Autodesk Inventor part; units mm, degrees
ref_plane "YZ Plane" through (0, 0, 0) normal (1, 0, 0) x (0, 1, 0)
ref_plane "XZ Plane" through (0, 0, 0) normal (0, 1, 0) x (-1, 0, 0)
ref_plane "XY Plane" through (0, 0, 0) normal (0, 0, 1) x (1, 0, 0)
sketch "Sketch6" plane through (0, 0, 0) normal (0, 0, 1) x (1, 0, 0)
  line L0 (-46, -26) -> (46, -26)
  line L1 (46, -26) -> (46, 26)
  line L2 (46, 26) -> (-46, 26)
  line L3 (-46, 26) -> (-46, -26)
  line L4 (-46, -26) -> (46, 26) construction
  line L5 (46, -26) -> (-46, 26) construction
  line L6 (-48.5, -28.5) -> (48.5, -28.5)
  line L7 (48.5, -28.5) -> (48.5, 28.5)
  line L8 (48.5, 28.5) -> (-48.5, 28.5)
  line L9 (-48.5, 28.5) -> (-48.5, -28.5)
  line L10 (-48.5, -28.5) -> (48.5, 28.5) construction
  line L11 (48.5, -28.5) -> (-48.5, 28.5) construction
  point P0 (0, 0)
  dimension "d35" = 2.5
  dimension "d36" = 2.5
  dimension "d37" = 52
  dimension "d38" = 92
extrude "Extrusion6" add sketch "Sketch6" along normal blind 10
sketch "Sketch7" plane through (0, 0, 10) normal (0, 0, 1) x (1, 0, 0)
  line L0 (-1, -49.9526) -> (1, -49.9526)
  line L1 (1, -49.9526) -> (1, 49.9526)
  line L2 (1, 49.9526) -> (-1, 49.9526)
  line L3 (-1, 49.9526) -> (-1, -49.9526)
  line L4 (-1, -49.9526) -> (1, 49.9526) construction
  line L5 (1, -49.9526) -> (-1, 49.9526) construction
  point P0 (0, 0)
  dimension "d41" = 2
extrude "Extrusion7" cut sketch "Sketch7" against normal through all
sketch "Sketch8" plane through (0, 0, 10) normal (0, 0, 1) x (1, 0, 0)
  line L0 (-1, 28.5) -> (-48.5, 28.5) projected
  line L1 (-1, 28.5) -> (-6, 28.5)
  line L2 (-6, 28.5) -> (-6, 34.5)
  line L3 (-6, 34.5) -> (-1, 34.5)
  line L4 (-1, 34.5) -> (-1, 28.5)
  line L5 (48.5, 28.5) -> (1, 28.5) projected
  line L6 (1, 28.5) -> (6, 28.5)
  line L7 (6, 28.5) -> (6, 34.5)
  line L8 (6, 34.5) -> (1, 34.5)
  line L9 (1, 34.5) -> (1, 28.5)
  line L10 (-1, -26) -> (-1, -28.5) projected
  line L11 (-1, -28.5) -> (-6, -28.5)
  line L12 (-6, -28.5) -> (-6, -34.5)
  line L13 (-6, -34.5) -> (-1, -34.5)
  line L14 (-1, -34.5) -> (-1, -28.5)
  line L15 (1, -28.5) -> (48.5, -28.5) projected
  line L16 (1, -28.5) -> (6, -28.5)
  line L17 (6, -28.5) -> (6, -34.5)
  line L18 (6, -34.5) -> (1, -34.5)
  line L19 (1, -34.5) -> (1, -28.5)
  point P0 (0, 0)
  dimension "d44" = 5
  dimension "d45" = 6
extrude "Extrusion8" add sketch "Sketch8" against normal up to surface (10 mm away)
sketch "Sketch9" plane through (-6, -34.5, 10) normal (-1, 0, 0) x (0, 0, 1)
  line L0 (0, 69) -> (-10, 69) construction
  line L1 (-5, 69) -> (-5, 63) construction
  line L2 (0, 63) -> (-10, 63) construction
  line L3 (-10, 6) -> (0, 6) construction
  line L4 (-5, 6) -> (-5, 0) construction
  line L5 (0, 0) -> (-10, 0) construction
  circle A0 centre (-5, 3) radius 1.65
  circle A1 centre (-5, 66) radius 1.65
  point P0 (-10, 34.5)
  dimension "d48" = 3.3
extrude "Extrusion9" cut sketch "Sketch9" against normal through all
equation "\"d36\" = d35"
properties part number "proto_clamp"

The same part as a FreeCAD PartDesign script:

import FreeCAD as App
import Part
import Sketcher

V = App.Vector
Q = App.Units.Quantity

doc = App.newDocument("Part")
body = doc.addObject("PartDesign::Body", "Body")
body.AllowCompound = True

sketch1 = doc.addObject("Sketcher::SketchObject", "Sketch")
body.addObject(sketch1)
sketch1.AttachmentSupport = (doc.XY_Plane, [""])
sketch1.MapMode = "FlatFace"
sketch1.addGeometry([
    Part.LineSegment(V(-48, 28, 0), V(-48, -28, 0)),
    Part.LineSegment(V(-48, -28, 0), V(48, -28, 0)),
    Part.LineSegment(V(48, -28, 0), V(48, 28, 0)),
    Part.LineSegment(V(48, 28, 0), V(-48, 28, 0)),
    Part.LineSegment(V(46, -26, 0), V(-46, -26, 0)),
    Part.LineSegment(V(-46, -26, 0), V(-46, 26, 0)),
    Part.LineSegment(V(-46, 26, 0), V(46, 26, 0)),
    Part.LineSegment(V(46, 26, 0), V(46, -26, 0)),
], False)
sketch1.addConstraint([
    Sketcher.Constraint("Coincident", 0, 2, 1, 1),
    Sketcher.Constraint("Coincident", 1, 2, 2, 1),
    Sketcher.Constraint("Coincident", 2, 2, 3, 1),
    Sketcher.Constraint("Coincident", 3, 2, 0, 1),
    Sketcher.Constraint("Coincident", 4, 2, 5, 1),
    Sketcher.Constraint("Coincident", 5, 2, 6, 1),
    Sketcher.Constraint("Coincident", 6, 2, 7, 1),
    Sketcher.Constraint("Coincident", 7, 2, 4, 1),
    Sketcher.Constraint("Vertical", 0),
    Sketcher.Constraint("Horizontal", 1),
    Sketcher.Constraint("Vertical", 2),
    Sketcher.Constraint("Horizontal", 3),
    Sketcher.Constraint("Horizontal", 4),
    Sketcher.Constraint("Vertical", 5),
    Sketcher.Constraint("Horizontal", 6),
    Sketcher.Constraint("Vertical", 7),
    Sketcher.Constraint("Symmetric", 0, 2, 2, 2, -1, 1),
    Sketcher.Constraint("Symmetric", 4, 2, 6, 2, -1, 1),
    Sketcher.Constraint("DistanceX", 4, 2, 4, 1, Q("92 mm")),
    Sketcher.Constraint("DistanceY", 5, 1, 5, 2, Q("52 mm")),
    Sketcher.Constraint("DistanceX", 0, 2, 4, 2, Q("2.5 mm")),
    Sketcher.Constraint("DistanceY", 0, 2, 4, 2, Q("2.5 mm")),
])
pad1 = doc.addObject("PartDesign::Pad", "Pad")
body.addObject(pad1)
pad1.Profile = sketch1
pad1.Length = 10

sketch2 = doc.addObject("Sketcher::SketchObject", "Sketch001")
body.addObject(sketch2)
sketch2.AttachmentSupport = (doc.XY_Plane, [""])
sketch2.MapMode = "FlatFace"
sketch2.AttachmentOffset = App.Placement(V(0, 0, 10), App.Rotation())
sketch2.addGeometry([
    Part.LineSegment(V(-1, 50, 0), V(-1, -50, 0)),
    Part.LineSegment(V(-1, -50, 0), V(1, -50, 0)),
    Part.LineSegment(V(1, -50, 0), V(1, 50, 0)),
    Part.LineSegment(V(1, 50, 0), V(-1, 50, 0)),
], False)
sketch2.addConstraint([
    Sketcher.Constraint("Coincident", 0, 2, 1, 1),
    Sketcher.Constraint("Coincident", 1, 2, 2, 1),
    Sketcher.Constraint("Coincident", 2, 2, 3, 1),
    Sketcher.Constraint("Coincident", 3, 2, 0, 1),
    Sketcher.Constraint("Vertical", 0),
    Sketcher.Constraint("Horizontal", 1),
    Sketcher.Constraint("Vertical", 2),
    Sketcher.Constraint("Horizontal", 3),
    Sketcher.Constraint("Symmetric", 0, 2, 2, 2, -1, 1),
    Sketcher.Constraint("DistanceX", 1, 1, 1, 2, Q("2 mm")),
    Sketcher.Constraint("DistanceY", 0, 2, 0, 1, Q("99.9052 mm")),
])
pocket1 = doc.addObject("PartDesign::Pocket", "Pocket")
body.addObject(pocket1)
pocket1.Profile = sketch2
pocket1.Type = "ThroughAll"

sketch3 = doc.addObject("Sketcher::SketchObject", "Sketch002")
body.addObject(sketch3)
sketch3.AttachmentSupport = (doc.XY_Plane, [""])
sketch3.MapMode = "FlatFace"
sketch3.AttachmentOffset = App.Placement(V(0, 0, 10), App.Rotation())
sketch3.addGeometry([
    Part.LineSegment(V(-6, 28, 0), V(-1, 28, 0)),
    Part.LineSegment(V(-1, 28, 0), V(-1, 34, 0)),
    Part.LineSegment(V(-1, 34, 0), V(-6, 34, 0)),
    Part.LineSegment(V(-6, 34, 0), V(-6, 28, 0)),
    Part.LineSegment(V(1, 28, 0), V(6, 28, 0)),
    Part.LineSegment(V(6, 28, 0), V(6, 34, 0)),
    Part.LineSegment(V(6, 34, 0), V(1, 34, 0)),
    Part.LineSegment(V(1, 34, 0), V(1, 28, 0)),
    Part.LineSegment(V(-1, -34, 0), V(-1, -28, 0)),
    Part.LineSegment(V(-1, -28, 0), V(-6, -28, 0)),
    Part.LineSegment(V(-6, -28, 0), V(-6, -34, 0)),
    Part.LineSegment(V(-6, -34, 0), V(-1, -34, 0)),
    Part.LineSegment(V(6, -28, 0), V(1, -28, 0)),
    Part.LineSegment(V(1, -28, 0), V(1, -34, 0)),
    Part.LineSegment(V(1, -34, 0), V(6, -34, 0)),
    Part.LineSegment(V(6, -34, 0), V(6, -28, 0)),
], False)
sketch3.addConstraint([
    Sketcher.Constraint("Coincident", 0, 2, 1, 1),
    Sketcher.Constraint("Coincident", 1, 2, 2, 1),
    Sketcher.Constraint("Coincident", 2, 2, 3, 1),
    Sketcher.Constraint("Coincident", 3, 2, 0, 1),
    Sketcher.Constraint("Coincident", 4, 2, 5, 1),
    Sketcher.Constraint("Coincident", 5, 2, 6, 1),
    Sketcher.Constraint("Coincident", 6, 2, 7, 1),
    Sketcher.Constraint("Coincident", 7, 2, 4, 1),
    Sketcher.Constraint("Coincident", 8, 2, 9, 1),
    Sketcher.Constraint("Coincident", 9, 2, 10, 1),
    Sketcher.Constraint("Coincident", 10, 2, 11, 1),
    Sketcher.Constraint("Coincident", 11, 2, 8, 1),
    Sketcher.Constraint("Coincident", 12, 2, 13, 1),
    Sketcher.Constraint("Coincident", 13, 2, 14, 1),
    Sketcher.Constraint("Coincident", 14, 2, 15, 1),
    Sketcher.Constraint("Coincident", 15, 2, 12, 1),
    Sketcher.Constraint("Horizontal", 0),
    Sketcher.Constraint("Vertical", 1),
    Sketcher.Constraint("Horizontal", 2),
    Sketcher.Constraint("Vertical", 3),
    Sketcher.Constraint("Horizontal", 4),
    Sketcher.Constraint("Vertical", 5),
    Sketcher.Constraint("Horizontal", 6),
    Sketcher.Constraint("Vertical", 7),
    Sketcher.Constraint("Vertical", 8),
    Sketcher.Constraint("Horizontal", 9),
    Sketcher.Constraint("Vertical", 10),
    Sketcher.Constraint("Horizontal", 11),
    Sketcher.Constraint("Horizontal", 12),
    Sketcher.Constraint("Vertical", 13),
    Sketcher.Constraint("Horizontal", 14),
    Sketcher.Constraint("Vertical", 15),
    Sketcher.Constraint("Symmetric", 7, 2, 8, 2, -1, 1),
    Sketcher.Constraint("Symmetric", 5, 2, 10, 2, -1, 1),
    Sketcher.Constraint("Symmetric", 0, 2, 12, 2, -1, 1),
    Sketcher.Constraint("Symmetric", 2, 2, 14, 2, -1, 1),
    Sketcher.Constraint("Symmetric", 3, 2, 4, 2, -2),
    Sketcher.Constraint("Symmetric", 1, 2, 6, 2, -2),
    Sketcher.Constraint("DistanceX", 0, 1, 0, 2, Q("5 mm")),
    Sketcher.Constraint("DistanceY", 1, 1, 1, 2, Q("6 mm")),
    Sketcher.Constraint("DistanceX", 2, 2, -1, 1, Q("6 mm")),
    Sketcher.Constraint("DistanceY", 8, 2, 0, 2, Q("57 mm")),
])
pad2 = doc.addObject("PartDesign::Pad", "Pad001")
body.addObject(pad2)
pad2.Profile = sketch3
pad2.Length = 10
pad2.Reversed = True

sketch4 = doc.addObject("Sketcher::SketchObject", "Sketch003")
body.addObject(sketch4)
sketch4.AttachmentSupport = (doc.YZ_Plane, [""])
sketch4.MapMode = "FlatFace"
sketch4.AttachmentOffset = App.Placement(V(0, 0, -6), App.Rotation())
sketch4.addGeometry([
    Part.Circle(V(-31.5, 5, 0), V(0, 0, 1), 1.6),
    Part.Circle(V(31.5, 5, 0), V(0, 0, 1), 1.6),
], False)
sketch4.addConstraint([
    Sketcher.Constraint("Equal", 0, 1),
    Sketcher.Constraint("Symmetric", 0, 3, 1, 3, -2),
    Sketcher.Constraint("Diameter", 0, Q("3.3 mm")),
    Sketcher.Constraint("DistanceY", -1, 1, 0, 3, Q("5 mm")),
    Sketcher.Constraint("DistanceX", 0, 3, 1, 3, Q("63 mm")),
])
pocket2 = doc.addObject("PartDesign::Pocket", "Pocket001")
body.addObject(pocket2)
pocket2.Profile = sketch4
pocket2.Type = "ThroughAll"
pocket2.Reversed = True

doc.recompute()
